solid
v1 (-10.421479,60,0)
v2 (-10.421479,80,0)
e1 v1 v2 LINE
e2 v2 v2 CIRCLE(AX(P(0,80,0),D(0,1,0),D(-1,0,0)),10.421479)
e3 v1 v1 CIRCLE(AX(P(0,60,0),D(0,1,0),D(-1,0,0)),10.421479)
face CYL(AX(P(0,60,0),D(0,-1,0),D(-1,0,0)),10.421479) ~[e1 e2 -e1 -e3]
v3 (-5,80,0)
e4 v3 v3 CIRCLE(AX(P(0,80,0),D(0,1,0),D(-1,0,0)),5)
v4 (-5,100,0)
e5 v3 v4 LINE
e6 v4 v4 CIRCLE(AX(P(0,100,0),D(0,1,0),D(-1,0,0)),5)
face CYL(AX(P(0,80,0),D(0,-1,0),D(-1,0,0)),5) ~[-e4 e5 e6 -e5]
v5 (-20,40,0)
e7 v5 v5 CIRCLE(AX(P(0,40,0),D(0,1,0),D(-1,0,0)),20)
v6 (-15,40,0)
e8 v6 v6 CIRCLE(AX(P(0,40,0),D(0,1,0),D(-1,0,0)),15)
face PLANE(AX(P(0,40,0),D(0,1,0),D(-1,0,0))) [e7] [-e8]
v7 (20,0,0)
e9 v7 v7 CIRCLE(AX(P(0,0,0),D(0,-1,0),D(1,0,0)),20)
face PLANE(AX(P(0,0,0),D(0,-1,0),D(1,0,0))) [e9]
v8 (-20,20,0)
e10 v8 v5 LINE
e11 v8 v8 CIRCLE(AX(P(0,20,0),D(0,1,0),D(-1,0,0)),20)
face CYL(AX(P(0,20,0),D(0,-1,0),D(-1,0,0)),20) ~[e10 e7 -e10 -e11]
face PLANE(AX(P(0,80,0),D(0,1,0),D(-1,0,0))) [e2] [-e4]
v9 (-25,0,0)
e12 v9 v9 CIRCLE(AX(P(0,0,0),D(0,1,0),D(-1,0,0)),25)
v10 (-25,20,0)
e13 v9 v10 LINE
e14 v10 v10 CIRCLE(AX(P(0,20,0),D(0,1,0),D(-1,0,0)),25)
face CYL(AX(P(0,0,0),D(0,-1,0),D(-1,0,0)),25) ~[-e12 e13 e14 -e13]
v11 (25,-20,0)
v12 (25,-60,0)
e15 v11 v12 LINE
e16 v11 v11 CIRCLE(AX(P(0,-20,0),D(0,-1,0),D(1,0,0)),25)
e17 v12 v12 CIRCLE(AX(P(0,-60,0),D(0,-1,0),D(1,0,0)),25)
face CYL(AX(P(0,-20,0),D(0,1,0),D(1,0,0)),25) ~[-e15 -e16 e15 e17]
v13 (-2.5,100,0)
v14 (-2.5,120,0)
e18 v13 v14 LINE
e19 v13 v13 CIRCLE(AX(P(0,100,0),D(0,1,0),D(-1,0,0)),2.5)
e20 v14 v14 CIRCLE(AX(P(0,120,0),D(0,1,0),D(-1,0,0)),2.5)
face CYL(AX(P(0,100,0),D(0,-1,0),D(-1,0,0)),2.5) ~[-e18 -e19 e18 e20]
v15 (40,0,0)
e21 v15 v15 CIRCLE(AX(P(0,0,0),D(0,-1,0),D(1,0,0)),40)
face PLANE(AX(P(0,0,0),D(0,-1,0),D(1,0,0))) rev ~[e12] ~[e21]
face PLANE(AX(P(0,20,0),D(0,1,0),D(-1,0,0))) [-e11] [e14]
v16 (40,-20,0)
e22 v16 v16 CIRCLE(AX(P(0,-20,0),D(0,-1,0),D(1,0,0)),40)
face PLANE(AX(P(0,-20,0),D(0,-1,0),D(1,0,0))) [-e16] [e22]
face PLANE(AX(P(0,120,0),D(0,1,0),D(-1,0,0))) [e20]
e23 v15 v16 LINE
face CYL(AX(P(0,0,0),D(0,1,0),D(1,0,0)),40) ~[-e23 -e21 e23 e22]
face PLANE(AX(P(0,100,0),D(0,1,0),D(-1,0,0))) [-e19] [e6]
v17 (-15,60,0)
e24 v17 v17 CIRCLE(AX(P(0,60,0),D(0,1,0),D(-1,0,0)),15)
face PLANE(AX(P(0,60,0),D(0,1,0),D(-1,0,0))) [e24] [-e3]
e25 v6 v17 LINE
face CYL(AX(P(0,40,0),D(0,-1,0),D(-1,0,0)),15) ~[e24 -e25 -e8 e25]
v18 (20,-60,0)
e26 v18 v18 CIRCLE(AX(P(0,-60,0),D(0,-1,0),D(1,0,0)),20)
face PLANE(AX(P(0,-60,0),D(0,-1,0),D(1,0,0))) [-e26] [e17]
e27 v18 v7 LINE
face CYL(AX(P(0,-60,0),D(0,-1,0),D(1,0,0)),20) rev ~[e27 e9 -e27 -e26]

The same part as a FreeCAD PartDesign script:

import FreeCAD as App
import Part
import Sketcher
Q = App.Units.Quantity

doc = App.newDocument("Part")
params = doc.addObject("Spreadsheet::Sheet", "Params")
for row, (alias, value) in enumerate([
    ("sketch1_diameter", "80 mm"),
    ("pad1_length", "20 mm"),
    ("sketch2_diameter", "50 mm"),
    ("pad2_length", "20 mm"),
    ("sketch3_diameter", "40 mm"),
    ("pad3_length", "20 mm"),
    ("sketch4_diameter", "30 mm"),
    ("pad4_length", "20 mm"),
    ("pad5_length", "20 mm"),
    ("sketch6_diameter", "10 mm"),
    ("pad6_length", "20 mm"),
    ("sketch7_diameter", "5 mm"),
    ("pad7_length", "20 mm"),
    ("sketch8_diameter", "50 mm"),
    ("pad8_length", "40 mm"),
    ("sketch9_diameter", "40 mm"),
    ("pocket1_length", "60 mm"),
], start=1):
    params.set(f"A{row}", alias)
    params.set(f"B{row}", "=" + value)
    params.setAlias(f"B{row}", alias)

body = doc.addObject("PartDesign::Body", "Body")

sketch1 = body.newObject("Sketcher::SketchObject", "Sketch")
sketch1.AttachmentSupport = (doc.getObject("XZ_Plane"), [""])
sketch1.MapMode = "FlatFace"
sketch1.addGeometry(Part.Circle(App.Vector(0, 0, 0), App.Vector(0, 0, 1), 40), False)
sketch1.addConstraint([
    Sketcher.Constraint("Coincident", 0, 3, -1, 1),
    Sketcher.Constraint("Diameter", 0, Q("80 mm")),
])
sketch1.setExpression("Constraints[1]", "Params.sketch1_diameter")
pad1 = body.newObject("PartDesign::Pad", "Pad")
pad1.Profile = sketch1
pad1.setExpression("Length", "Params.pad1_length")

sketch2 = body.newObject("Sketcher::SketchObject", "Sketch001")
sketch2.AttachmentSupport = (doc.getObject("XZ_Plane"), [""])
sketch2.MapMode = "FlatFace"
sketch2.addGeometry(Part.Circle(App.Vector(0, 0, 0), App.Vector(0, 0, 1), 25), False)
sketch2.addConstraint([
    Sketcher.Constraint("Coincident", 0, 3, -1, 1),
    Sketcher.Constraint("Diameter", 0, Q("50 mm")),
])
sketch2.setExpression("Constraints[1]", "Params.sketch2_diameter")
pad2 = body.newObject("PartDesign::Pad", "Pad001")
pad2.Profile = sketch2
pad2.setExpression("Length", "Params.pad2_length")
pad2.Reversed = True

sketch3 = body.newObject("Sketcher::SketchObject", "Sketch002")
sketch3.AttachmentSupport = (doc.getObject("XZ_Plane"), [""])
sketch3.MapMode = "FlatFace"
sketch3.AttachmentOffset = App.Placement(App.Vector(0, 0, -20), App.Rotation())
sketch3.addGeometry(Part.Circle(App.Vector(0, 0, 0), App.Vector(0, 0, 1), 20), False)
sketch3.addConstraint([
    Sketcher.Constraint("Coincident", 0, 3, -1, 1),
    Sketcher.Constraint("Diameter", 0, Q("40 mm")),
])
sketch3.setExpression("Constraints[1]", "Params.sketch3_diameter")
pad3 = body.newObject("PartDesign::Pad", "Pad002")
pad3.Profile = sketch3
pad3.setExpression("Length", "Params.pad3_length")
pad3.Reversed = True

sketch4 = body.newObject("Sketcher::SketchObject", "Sketch003")
sketch4.AttachmentSupport = (doc.getObject("XZ_Plane"), [""])
sketch4.MapMode = "FlatFace"
sketch4.AttachmentOffset = App.Placement(App.Vector(0, 0, -40), App.Rotation())
sketch4.addGeometry(Part.Circle(App.Vector(0, 0, 0), App.Vector(0, 0, 1), 15), False)
sketch4.addConstraint([
    Sketcher.Constraint("Coincident", 0, 3, -1, 1),
    Sketcher.Constraint("Diameter", 0, Q("30 mm")),
])
sketch4.setExpression("Constraints[1]", "Params.sketch4_diameter")
pad4 = body.newObject("PartDesign::Pad", "Pad003")
pad4.Profile = sketch4
pad4.setExpression("Length", "Params.pad4_length")
pad4.Reversed = True

sketch5 = body.newObject("Sketcher::SketchObject", "Sketch004")
sketch5.AttachmentSupport = (doc.getObject("XZ_Plane"), [""])
sketch5.MapMode = "FlatFace"
sketch5.AttachmentOffset = App.Placement(App.Vector(0, 0, -60), App.Rotation())
sketch5.addGeometry(Part.Circle(App.Vector(0, 0, 0), App.Vector(0, 0, 1), 10), False)
sketch5.addConstraint([
    Sketcher.Constraint("Coincident", 0, 3, -1, 1),
    Sketcher.Constraint("Diameter", 0, Q("20.842957 mm")),
])
pad5 = body.newObject("PartDesign::Pad", "Pad004")
pad5.Profile = sketch5
pad5.setExpression("Length", "Params.pad5_length")
pad5.Reversed = True

sketch6 = body.newObject("Sketcher::SketchObject", "Sketch005")
sketch6.AttachmentSupport = (doc.getObject("XZ_Plane"), [""])
sketch6.MapMode = "FlatFace"
sketch6.AttachmentOffset = App.Placement(App.Vector(0, 0, -80), App.Rotation())
sketch6.addGeometry(Part.Circle(App.Vector(0, 0, 0), App.Vector(0, 0, 1), 5), False)
sketch6.addConstraint([
    Sketcher.Constraint("Coincident", 0, 3, -1, 1),
    Sketcher.Constraint("Diameter", 0, Q("10 mm")),
])
sketch6.setExpression("Constraints[1]", "Params.sketch6_diameter")
pad6 = body.newObject("PartDesign::Pad", "Pad005")
pad6.Profile = sketch6
pad6.setExpression("Length", "Params.pad6_length")
pad6.Reversed = True

sketch7 = body.newObject("Sketcher::SketchObject", "Sketch006")
sketch7.AttachmentSupport = (doc.getObject("XZ_Plane"), [""])
sketch7.MapMode = "FlatFace"
sketch7.AttachmentOffset = App.Placement(App.Vector(0, 0, -100), App.Rotation())
sketch7.addGeometry(Part.Circle(App.Vector(0, 0, 0), App.Vector(0, 0, 1), 2.5), False)
sketch7.addConstraint([
    Sketcher.Constraint("Coincident", 0, 3, -1, 1),
    Sketcher.Constraint("Diameter", 0, Q("5 mm")),
])
sketch7.setExpression("Constraints[1]", "Params.sketch7_diameter")
pad7 = body.newObject("PartDesign::Pad", "Pad006")
pad7.Profile = sketch7
pad7.setExpression("Length", "Params.pad7_length")
pad7.Reversed = True

sketch8 = body.newObject("Sketcher::SketchObject", "Sketch007")
sketch8.AttachmentSupport = (doc.getObject("XZ_Plane"), [""])
sketch8.MapMode = "FlatFace"
sketch8.AttachmentOffset = App.Placement(App.Vector(0, 0, 20), App.Rotation())
sketch8.addGeometry(Part.Circle(App.Vector(0, 0, 0), App.Vector(0, 0, 1), 25), False)
sketch8.addConstraint([
    Sketcher.Constraint("Coincident", 0, 3, -1, 1),
    Sketcher.Constraint("Diameter", 0, Q("50 mm")),
])
sketch8.setExpression("Constraints[1]", "Params.sketch8_diameter")
pad8 = body.newObject("PartDesign::Pad", "Pad007")
pad8.Profile = sketch8
pad8.setExpression("Length", "Params.pad8_length")

sketch9 = body.newObject("Sketcher::SketchObject", "Sketch008")
sketch9.AttachmentSupport = (doc.getObject("XZ_Plane"), [""])
sketch9.MapMode = "FlatFace"
sketch9.AttachmentOffset = App.Placement(App.Vector(0, 0, 60), App.Rotation())
sketch9.addGeometry(Part.Circle(App.Vector(0, 0, 0), App.Vector(0, 0, 1), 20), False)
sketch9.addConstraint([
    Sketcher.Constraint("Coincident", 0, 3, -1, 1),
    Sketcher.Constraint("Diameter", 0, Q("40 mm")),
])
sketch9.setExpression("Constraints[1]", "Params.sketch9_diameter")
pocket1 = body.newObject("PartDesign::Pocket", "Pocket")
pocket1.Profile = sketch9
pocket1.setExpression("Length", "Params.pocket1_length")

doc.recompute()
